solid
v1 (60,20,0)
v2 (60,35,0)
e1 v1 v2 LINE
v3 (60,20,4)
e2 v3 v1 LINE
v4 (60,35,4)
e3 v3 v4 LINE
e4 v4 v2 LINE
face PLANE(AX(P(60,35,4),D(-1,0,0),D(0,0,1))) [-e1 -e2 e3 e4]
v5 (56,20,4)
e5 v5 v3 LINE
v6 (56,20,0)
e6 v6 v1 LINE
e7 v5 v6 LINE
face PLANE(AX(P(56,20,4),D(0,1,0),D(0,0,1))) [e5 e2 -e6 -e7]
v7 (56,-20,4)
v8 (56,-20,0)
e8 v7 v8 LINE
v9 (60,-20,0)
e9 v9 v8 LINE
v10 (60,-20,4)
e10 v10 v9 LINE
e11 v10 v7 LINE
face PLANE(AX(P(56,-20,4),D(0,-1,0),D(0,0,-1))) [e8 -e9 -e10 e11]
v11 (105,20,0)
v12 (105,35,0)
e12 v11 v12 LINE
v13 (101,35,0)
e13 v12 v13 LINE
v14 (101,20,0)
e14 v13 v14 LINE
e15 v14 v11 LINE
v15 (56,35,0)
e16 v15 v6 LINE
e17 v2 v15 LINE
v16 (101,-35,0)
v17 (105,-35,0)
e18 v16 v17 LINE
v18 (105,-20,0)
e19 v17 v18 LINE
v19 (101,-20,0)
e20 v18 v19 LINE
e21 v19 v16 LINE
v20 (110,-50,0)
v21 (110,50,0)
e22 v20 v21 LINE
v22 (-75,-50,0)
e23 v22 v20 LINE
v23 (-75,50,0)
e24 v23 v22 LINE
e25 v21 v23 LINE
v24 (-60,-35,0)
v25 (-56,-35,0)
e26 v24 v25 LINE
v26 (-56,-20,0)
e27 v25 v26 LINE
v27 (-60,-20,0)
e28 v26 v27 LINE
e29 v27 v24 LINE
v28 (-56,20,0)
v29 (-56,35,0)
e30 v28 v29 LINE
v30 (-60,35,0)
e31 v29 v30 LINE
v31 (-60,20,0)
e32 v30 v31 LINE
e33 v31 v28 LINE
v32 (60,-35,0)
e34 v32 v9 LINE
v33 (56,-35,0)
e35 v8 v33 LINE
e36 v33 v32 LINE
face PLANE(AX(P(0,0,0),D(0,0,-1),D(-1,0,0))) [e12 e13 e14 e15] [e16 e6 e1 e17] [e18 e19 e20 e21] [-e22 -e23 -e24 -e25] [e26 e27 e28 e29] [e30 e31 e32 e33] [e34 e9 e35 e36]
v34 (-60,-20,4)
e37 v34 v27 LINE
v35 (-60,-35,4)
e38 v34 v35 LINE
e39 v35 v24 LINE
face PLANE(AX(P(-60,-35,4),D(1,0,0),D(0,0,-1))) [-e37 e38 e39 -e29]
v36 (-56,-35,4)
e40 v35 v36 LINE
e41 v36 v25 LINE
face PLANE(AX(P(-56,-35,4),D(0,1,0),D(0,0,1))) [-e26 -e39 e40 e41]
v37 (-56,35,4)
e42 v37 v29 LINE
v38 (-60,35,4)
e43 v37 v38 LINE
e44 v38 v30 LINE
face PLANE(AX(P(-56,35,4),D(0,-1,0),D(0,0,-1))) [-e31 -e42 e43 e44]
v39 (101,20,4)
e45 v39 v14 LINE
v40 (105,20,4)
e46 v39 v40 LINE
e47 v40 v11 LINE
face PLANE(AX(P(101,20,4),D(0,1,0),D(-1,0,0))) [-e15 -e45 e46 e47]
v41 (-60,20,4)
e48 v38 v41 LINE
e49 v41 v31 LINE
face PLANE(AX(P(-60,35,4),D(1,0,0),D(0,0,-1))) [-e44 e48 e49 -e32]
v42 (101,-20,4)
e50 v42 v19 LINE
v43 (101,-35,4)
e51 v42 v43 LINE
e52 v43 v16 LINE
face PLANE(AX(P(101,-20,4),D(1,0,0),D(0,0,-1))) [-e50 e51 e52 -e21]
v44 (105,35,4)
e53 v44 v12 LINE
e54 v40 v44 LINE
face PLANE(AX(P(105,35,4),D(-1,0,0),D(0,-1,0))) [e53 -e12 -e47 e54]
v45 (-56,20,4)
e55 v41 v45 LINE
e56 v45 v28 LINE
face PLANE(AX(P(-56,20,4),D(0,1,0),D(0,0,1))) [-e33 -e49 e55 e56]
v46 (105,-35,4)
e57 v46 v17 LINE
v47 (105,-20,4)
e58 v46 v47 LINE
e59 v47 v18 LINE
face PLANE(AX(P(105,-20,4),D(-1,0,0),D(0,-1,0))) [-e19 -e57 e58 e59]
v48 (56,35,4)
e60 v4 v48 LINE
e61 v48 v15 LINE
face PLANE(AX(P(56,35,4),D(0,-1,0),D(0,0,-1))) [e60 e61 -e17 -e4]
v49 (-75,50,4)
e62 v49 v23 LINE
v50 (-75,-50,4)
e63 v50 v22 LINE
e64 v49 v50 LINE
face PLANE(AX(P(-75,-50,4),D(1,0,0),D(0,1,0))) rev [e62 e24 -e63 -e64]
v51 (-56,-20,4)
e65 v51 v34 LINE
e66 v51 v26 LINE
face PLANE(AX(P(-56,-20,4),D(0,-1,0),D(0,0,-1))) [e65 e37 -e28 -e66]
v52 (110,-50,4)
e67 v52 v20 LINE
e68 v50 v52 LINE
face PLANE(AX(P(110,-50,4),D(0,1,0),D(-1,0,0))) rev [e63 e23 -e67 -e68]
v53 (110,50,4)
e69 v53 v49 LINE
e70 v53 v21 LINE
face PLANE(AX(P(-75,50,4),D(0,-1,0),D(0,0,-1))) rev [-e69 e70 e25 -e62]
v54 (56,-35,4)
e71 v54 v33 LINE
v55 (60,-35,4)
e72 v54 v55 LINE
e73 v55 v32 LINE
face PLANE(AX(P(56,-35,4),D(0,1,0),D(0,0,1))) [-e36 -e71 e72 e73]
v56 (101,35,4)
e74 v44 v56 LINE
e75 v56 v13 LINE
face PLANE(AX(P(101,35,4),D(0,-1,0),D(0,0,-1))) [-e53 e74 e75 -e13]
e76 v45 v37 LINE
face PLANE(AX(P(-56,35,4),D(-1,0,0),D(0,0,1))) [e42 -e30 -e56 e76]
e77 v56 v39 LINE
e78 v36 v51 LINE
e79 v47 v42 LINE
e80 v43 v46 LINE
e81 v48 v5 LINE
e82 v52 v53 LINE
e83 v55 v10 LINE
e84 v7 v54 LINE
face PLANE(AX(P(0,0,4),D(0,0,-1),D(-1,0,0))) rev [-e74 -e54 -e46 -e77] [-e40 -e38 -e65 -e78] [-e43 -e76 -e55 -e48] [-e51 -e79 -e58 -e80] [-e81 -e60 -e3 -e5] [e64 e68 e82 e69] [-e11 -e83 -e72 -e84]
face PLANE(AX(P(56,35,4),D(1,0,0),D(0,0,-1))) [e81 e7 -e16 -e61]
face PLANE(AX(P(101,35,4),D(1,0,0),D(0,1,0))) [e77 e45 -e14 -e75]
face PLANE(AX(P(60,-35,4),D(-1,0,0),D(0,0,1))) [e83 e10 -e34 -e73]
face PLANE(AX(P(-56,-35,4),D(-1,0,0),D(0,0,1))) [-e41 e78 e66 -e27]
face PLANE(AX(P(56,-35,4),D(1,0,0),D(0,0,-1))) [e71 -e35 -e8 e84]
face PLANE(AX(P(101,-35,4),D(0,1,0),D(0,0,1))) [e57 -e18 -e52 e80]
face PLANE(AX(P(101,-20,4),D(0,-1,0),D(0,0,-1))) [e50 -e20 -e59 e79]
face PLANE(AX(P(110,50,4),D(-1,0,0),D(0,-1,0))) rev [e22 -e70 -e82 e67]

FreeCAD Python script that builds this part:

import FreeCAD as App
import Part
import Sketcher


def add_polygon(sketch, points):
    """Adds a closed chain of lines whose ends are joined by coincident constraints."""
    first, n = sketch.GeometryCount, len(points)
    for a, b in zip(points, points[1:] + points[:1]):
        sketch.addGeometry(Part.LineSegment(App.Vector(*a, 0), App.Vector(*b, 0)), False)
    for i in range(n):
        sketch.addConstraint(Sketcher.Constraint("Coincident", first + i, 2, first + (i + 1) % n, 1))

doc = App.newDocument("Part")
body = doc.addObject("PartDesign::Body", "Body")

# Sketch on XY plane
sketch1 = body.newObject("Sketcher::SketchObject", "Sketch")
sketch1.AttachmentSupport = (doc.getObject("XY_Plane"), [""])
sketch1.MapMode = "FlatFace"
add_polygon(sketch1, [(-75, -50), (110, -50), (110, 50), (-75, 50)])  # lines 0-3
add_polygon(sketch1, [(-56, -35), (-60, -35), (-60, -20), (-56, -20)])  # lines 4-7
add_polygon(sketch1, [(60, -35), (56, -35), (56, -20), (60, -20)])  # lines 8-11
add_polygon(sketch1, [(105, -35), (101, -35), (101, -20), (105, -20)])  # lines 12-15
add_polygon(sketch1, [(-56, 20), (-60, 20), (-60, 35), (-56, 35)])  # lines 16-19
add_polygon(sketch1, [(60, 20), (56, 20), (56, 35), (60, 35)])  # lines 20-23
add_polygon(sketch1, [(105, 20), (101, 20), (101, 35), (105, 35)])  # lines 24-27
sketch1.addConstraint([
    Sketcher.Constraint("Horizontal", 0),
    Sketcher.Constraint("Vertical", 1),
    Sketcher.Constraint("Horizontal", 2),
    Sketcher.Constraint("Vertical", 3),
    Sketcher.Constraint("Horizontal", 4),
    Sketcher.Constraint("Vertical", 5),
    Sketcher.Constraint("Horizontal", 6),
    Sketcher.Constraint("Vertical", 7),
    Sketcher.Constraint("Horizontal", 8),
    Sketcher.Constraint("Vertical", 9),
    Sketcher.Constraint("Horizontal", 10),
    Sketcher.Constraint("Vertical", 11),
    Sketcher.Constraint("Horizontal", 12),
    Sketcher.Constraint("Vertical", 13),
    Sketcher.Constraint("Horizontal", 14),
    Sketcher.Constraint("Vertical", 15),
    Sketcher.Constraint("Horizontal", 16),
    Sketcher.Constraint("Vertical", 17),
    Sketcher.Constraint("Horizontal", 18),
    Sketcher.Constraint("Vertical", 19),
    Sketcher.Constraint("Horizontal", 20),
    Sketcher.Constraint("Vertical", 21),
    Sketcher.Constraint("Horizontal", 22),
    Sketcher.Constraint("Vertical", 23),
    Sketcher.Constraint("Horizontal", 24),
    Sketcher.Constraint("Vertical", 25),
    Sketcher.Constraint("Horizontal", 26),
    Sketcher.Constraint("Vertical", 27),
    Sketcher.Constraint("Symmetric", 10, 2, 16, 2, -1, 1),
    Sketcher.Constraint("Symmetric", 8, 2, 18, 2, -1, 1),
    Sketcher.Constraint("Symmetric", 6, 2, 20, 2, -1, 1),
    Sketcher.Constraint("Symmetric", 4, 2, 22, 2, -1, 1),
    Sketcher.Constraint("Symmetric", 7, 2, 8, 2, -2),
    Sketcher.Constraint("Symmetric", 5, 2, 10, 2, -2),
    Sketcher.Constraint("Symmetric", 13, 2, 24, 2, -1),
    Sketcher.Constraint("Symmetric", 15, 2, 26, 2, -1),
    Sketcher.Constraint("Horizontal", 11, 2, 12, 2),
    Sketcher.Constraint("Horizontal", 10, 2, 13, 2),
    Sketcher.Constraint("Equal", 10, 12),
    Sketcher.Constraint("DistanceX", 0, 1, 0, 2, 185.0),
    Sketcher.Constraint("DistanceX", 4, 2, 4, 1, 4.0),
    Sketcher.Constraint("DistanceY", 1, 1, 1, 2, 100.0),
    Sketcher.Constraint("DistanceY", 5, 1, 5, 2, 15.0),
    Sketcher.Constraint("DistanceX", -1, 1, 0, 2, 110.0),
    Sketcher.Constraint("DistanceY", 0, 2, -1, 1, 50.0),
    Sketcher.Constraint("DistanceX", 4, 2, -1, 1, 60.0),
    Sketcher.Constraint("DistanceY", 4, 2, -1, 1, 35.0),
    Sketcher.Constraint("DistanceX", -1, 1, 12, 2, 101.0),
])
pad1 = body.newObject("PartDesign::Pad", "Pad")
pad1.Profile = sketch1
pad1.Length = 4

doc.recompute()
